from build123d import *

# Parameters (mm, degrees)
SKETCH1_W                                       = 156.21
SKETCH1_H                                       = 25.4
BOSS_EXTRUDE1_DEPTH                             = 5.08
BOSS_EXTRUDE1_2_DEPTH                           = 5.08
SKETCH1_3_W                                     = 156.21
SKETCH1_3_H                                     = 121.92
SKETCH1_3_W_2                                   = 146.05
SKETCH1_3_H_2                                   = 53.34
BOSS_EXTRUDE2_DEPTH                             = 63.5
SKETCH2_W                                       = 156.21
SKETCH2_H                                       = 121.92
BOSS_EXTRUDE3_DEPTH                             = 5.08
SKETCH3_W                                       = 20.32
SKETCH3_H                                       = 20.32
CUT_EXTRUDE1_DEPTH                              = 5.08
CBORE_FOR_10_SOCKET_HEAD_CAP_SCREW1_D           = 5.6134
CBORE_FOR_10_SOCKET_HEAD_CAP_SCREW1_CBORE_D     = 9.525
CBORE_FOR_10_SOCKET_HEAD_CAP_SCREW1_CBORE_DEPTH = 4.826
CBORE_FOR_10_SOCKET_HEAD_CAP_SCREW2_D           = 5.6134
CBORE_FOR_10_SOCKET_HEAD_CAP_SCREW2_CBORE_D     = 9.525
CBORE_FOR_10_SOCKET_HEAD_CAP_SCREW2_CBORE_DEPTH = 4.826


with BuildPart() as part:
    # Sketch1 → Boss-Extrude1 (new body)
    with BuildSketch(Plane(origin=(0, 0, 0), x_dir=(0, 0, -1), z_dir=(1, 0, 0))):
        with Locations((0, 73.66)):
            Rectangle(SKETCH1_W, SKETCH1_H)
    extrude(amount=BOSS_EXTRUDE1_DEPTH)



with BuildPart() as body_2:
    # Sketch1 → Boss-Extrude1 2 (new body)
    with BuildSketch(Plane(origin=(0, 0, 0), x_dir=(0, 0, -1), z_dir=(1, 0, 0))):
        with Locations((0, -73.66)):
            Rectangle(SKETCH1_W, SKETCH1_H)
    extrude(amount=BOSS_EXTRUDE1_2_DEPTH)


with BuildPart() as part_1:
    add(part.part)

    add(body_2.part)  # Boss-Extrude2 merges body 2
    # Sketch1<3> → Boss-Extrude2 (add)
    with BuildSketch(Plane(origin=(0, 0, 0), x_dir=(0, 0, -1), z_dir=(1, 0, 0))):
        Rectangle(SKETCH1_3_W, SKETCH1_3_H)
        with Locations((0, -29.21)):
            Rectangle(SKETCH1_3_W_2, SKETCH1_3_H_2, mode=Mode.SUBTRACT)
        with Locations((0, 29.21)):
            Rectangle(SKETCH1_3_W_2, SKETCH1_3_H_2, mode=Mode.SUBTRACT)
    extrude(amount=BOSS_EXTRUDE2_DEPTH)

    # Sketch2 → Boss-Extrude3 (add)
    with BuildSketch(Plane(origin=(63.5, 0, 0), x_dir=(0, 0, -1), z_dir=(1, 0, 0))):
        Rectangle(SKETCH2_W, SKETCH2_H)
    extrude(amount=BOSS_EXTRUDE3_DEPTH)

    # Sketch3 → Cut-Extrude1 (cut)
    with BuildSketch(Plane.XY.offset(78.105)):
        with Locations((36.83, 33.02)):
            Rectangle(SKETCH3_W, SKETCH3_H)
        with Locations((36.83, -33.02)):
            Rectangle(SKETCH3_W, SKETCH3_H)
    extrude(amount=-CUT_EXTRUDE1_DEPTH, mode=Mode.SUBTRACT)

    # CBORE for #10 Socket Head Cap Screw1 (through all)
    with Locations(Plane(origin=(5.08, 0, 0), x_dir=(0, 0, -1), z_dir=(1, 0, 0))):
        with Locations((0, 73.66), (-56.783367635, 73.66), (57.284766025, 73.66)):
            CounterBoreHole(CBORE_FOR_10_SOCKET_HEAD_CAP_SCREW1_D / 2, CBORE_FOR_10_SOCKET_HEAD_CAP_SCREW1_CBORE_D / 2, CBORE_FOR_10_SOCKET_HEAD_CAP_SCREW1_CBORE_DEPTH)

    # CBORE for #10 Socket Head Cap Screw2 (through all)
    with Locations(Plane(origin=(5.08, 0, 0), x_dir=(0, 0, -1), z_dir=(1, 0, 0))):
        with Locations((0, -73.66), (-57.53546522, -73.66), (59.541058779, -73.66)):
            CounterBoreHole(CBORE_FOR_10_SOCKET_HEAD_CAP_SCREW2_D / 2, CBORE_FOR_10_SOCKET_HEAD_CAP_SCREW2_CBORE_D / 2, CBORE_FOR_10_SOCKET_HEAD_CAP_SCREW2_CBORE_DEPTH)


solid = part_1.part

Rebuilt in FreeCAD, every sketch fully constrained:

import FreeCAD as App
import Part
import Sketcher
Q = App.Units.Quantity

doc = App.newDocument("Part")
params = doc.addObject("Spreadsheet::Sheet", "Params")
for row, (alias, value) in enumerate([
    ("sketch1_width", "1 in"),
    ("sketch1_height", "6.15 in"),
    ("pad1_length", "0.2 in"),
    ("sketch2_width", "1 in"),
    ("sketch2_height", "6.15 in"),
    ("pad2_length", "0.2 in"),
    ("sketch3_width", "4.8 in"),
    ("sketch3_width2", "2.1 in"),
    ("sketch3_height", "6.15 in"),
    ("sketch3_height2", "5.75 in"),
    ("pad3_length", "2.5 in"),
    ("sketch4_width", "4.8 in"),
    ("sketch4_height", "6.15 in"),
    ("pad4_length", "0.2 in"),
    ("sketch5_width", "0.8 in"),
    ("pocket1_length", "0.2 in"),
    ("sketch6_diameter", "0.221 in"),
    ("hole_diameter", "0.221 in"),
    ("hole_cbore_diameter", "0.375 in"),
    ("hole_cbore_depth", "0.19 in"),
    ("sketch7_diameter", "0.221 in"),
    ("hole2_diameter", "0.221 in"),
    ("hole2_cbore_diameter", "0.375 in"),
    ("hole2_cbore_depth", "0.19 in"),
], start=1):
    params.set(f"A{row}", alias)
    params.set(f"B{row}", "=" + value)
    params.setAlias(f"B{row}", alias)

body = doc.addObject("PartDesign::Body", "Body")

sketch1 = body.newObject("Sketcher::SketchObject", "Sketch")
sketch1.AttachmentSupport = (doc.getObject("YZ_Plane"), [""])
sketch1.MapMode = "FlatFace"
sketch1.addGeometry([
    Part.LineSegment(App.Vector(86, 78, 0), App.Vector(61, 78, 0)),
    Part.LineSegment(App.Vector(61, 78, 0), App.Vector(61, -78, 0)),
    Part.LineSegment(App.Vector(61, -78, 0), App.Vector(86, -78, 0)),
    Part.LineSegment(App.Vector(86, -78, 0), App.Vector(86, 78, 0)),
], False)
sketch1.addConstraint([
    Sketcher.Constraint("Coincident", 0, 2, 1, 1),
    Sketcher.Constraint("Coincident", 1, 2, 2, 1),
    Sketcher.Constraint("Coincident", 2, 2, 3, 1),
    Sketcher.Constraint("Coincident", 3, 2, 0, 1),
    Sketcher.Constraint("Horizontal", 0),
    Sketcher.Constraint("Vertical", 1),
    Sketcher.Constraint("Horizontal", 2),
    Sketcher.Constraint("Vertical", 3),
    Sketcher.Constraint("DistanceX", 0, 2, 0, 1, Q("1 in")),
    Sketcher.Constraint("DistanceY", 1, 2, 1, 1, Q("6.15 in")),
    Sketcher.Constraint("DistanceX", -1, 1, 0, 2, Q("2.4 in")),
    Sketcher.Constraint("DistanceY", -1, 1, 0, 2, Q("3.075 in")),
])
sketch1.setExpression("Constraints[8]", "Params.sketch1_width")
sketch1.setExpression("Constraints[9]", "Params.sketch1_height")
pad1 = body.newObject("PartDesign::Pad", "Pad")
pad1.Profile = sketch1
pad1.setExpression("Length", "Params.pad1_length")
body2 = doc.addObject("PartDesign::Body", "Body001")

sketch2 = body2.newObject("Sketcher::SketchObject", "Sketch001")
sketch2.AttachmentSupport = (doc.getObject("YZ_Plane001"), [""])
sketch2.MapMode = "FlatFace"
sketch2.addGeometry([
    Part.LineSegment(App.Vector(-61, 78, 0), App.Vector(-86, 78, 0)),
    Part.LineSegment(App.Vector(-86, 78, 0), App.Vector(-86, -78, 0)),
    Part.LineSegment(App.Vector(-86, -78, 0), App.Vector(-61, -78, 0)),
    Part.LineSegment(App.Vector(-61, -78, 0), App.Vector(-61, 78, 0)),
], False)
sketch2.addConstraint([
    Sketcher.Constraint("Coincident", 0, 2, 1, 1),
    Sketcher.Constraint("Coincident", 1, 2, 2, 1),
    Sketcher.Constraint("Coincident", 2, 2, 3, 1),
    Sketcher.Constraint("Coincident", 3, 2, 0, 1),
    Sketcher.Constraint("Horizontal", 0),
    Sketcher.Constraint("Vertical", 1),
    Sketcher.Constraint("Horizontal", 2),
    Sketcher.Constraint("Vertical", 3),
    Sketcher.Constraint("DistanceX", 0, 2, 0, 1, Q("1 in")),
    Sketcher.Constraint("DistanceY", 1, 2, 1, 1, Q("6.15 in")),
    Sketcher.Constraint("DistanceX", 0, 2, -1, 1, Q("3.4 in")),
    Sketcher.Constraint("DistanceY", -1, 1, 0, 2, Q("3.075 in")),
])
sketch2.setExpression("Constraints[8]", "Params.sketch2_width")
sketch2.setExpression("Constraints[9]", "Params.sketch2_height")
pad2 = body2.newObject("PartDesign::Pad", "Pad001")
pad2.Profile = sketch2
pad2.setExpression("Length", "Params.pad2_length")
body.AllowCompound = True
doc.recompute()

boolean = body.newObject("PartDesign::Boolean", "Boolean")
boolean.Type = "Fuse"
boolean.addObjects([body2])

sketch3 = body.newObject("Sketcher::SketchObject", "Sketch002")
sketch3.AttachmentSupport = (doc.getObject("YZ_Plane"), [""])
sketch3.MapMode = "FlatFace"
sketch3.addGeometry([
    Part.LineSegment(App.Vector(61, 78, 0), App.Vector(-61, 78, 0)),
    Part.LineSegment(App.Vector(-61, 78, 0), App.Vector(-61, -78, 0)),
    Part.LineSegment(App.Vector(-61, -78, 0), App.Vector(61, -78, 0)),
    Part.LineSegment(App.Vector(61, -78, 0), App.Vector(61, 78, 0)),
    Part.LineSegment(App.Vector(-56, -73, 0), App.Vector(-56, 73, 0)),
    Part.LineSegment(App.Vector(-56, 73, 0), App.Vector(-3, 73, 0)),
    Part.LineSegment(App.Vector(-3, 73, 0), App.Vector(-3, -73, 0)),
    Part.LineSegment(App.Vector(-3, -73, 0), App.Vector(-56, -73, 0)),
    Part.LineSegment(App.Vector(3, -73, 0), App.Vector(3, 73, 0)),
    Part.LineSegment(App.Vector(3, 73, 0), App.Vector(56, 73, 0)),
    Part.LineSegment(App.Vector(56, 73, 0), App.Vector(56, -73, 0)),
    Part.LineSegment(App.Vector(56, -73, 0), App.Vector(3, -73, 0)),
], False)
sketch3.addConstraint([
    Sketcher.Constraint("Coincident", 0, 2, 1, 1),
    Sketcher.Constraint("Coincident", 1, 2, 2, 1),
    Sketcher.Constraint("Coincident", 2, 2, 3, 1),
    Sketcher.Constraint("Coincident", 3, 2, 0, 1),
    Sketcher.Constraint("Coincident", 4, 2, 5, 1),
    Sketcher.Constraint("Coincident", 5, 2, 6, 1),
    Sketcher.Constraint("Coincident", 6, 2, 7, 1),
    Sketcher.Constraint("Coincident", 7, 2, 4, 1),
    Sketcher.Constraint("Coincident", 8, 2, 9, 1),
    Sketcher.Constraint("Coincident", 9, 2, 10, 1),
    Sketcher.Constraint("Coincident", 10, 2, 11, 1),
    Sketcher.Constraint("Coincident", 11, 2, 8, 1),
    Sketcher.Constraint("Horizontal", 0),
    Sketcher.Constraint("Vertical", 1),
    Sketcher.Constraint("Horizontal", 2),
    Sketcher.Constraint("Vertical", 3),
    Sketcher.Constraint("Vertical", 4),
    Sketcher.Constraint("Horizontal", 5),
    Sketcher.Constraint("Vertical", 6),
    Sketcher.Constraint("Horizontal", 7),
    Sketcher.Constraint("Vertical", 8),
    Sketcher.Constraint("Horizontal", 9),
    Sketcher.Constraint("Vertical", 10),
    Sketcher.Constraint("Horizontal", 11),
    Sketcher.Constraint("Symmetric", 0, 2, 2, 2, -1, 1),
    Sketcher.Constraint("Symmetric", 6, 2, 8, 2, -1, 1),
    Sketcher.Constraint("Symmetric", 4, 2, 10, 2, -1, 1),
    Sketcher.Constraint("Horizontal", 5, 2, 8, 2),
    Sketcher.Constraint("DistanceX", 0, 2, 0, 1, Q("4.8 in")),
    Sketcher.Constraint("DistanceX", 5, 1, 5, 2, Q("2.1 in")),
    Sketcher.Constraint("DistanceY", 1, 2, 1, 1, Q("6.15 in")),
    Sketcher.Constraint("DistanceY", 4, 1, 4, 2, Q("5.75 in")),
    Sketcher.Constraint("DistanceX", 4, 2, -1, 1, Q("2.2 in")),
])
sketch3.setExpression("Constraints[28]", "Params.sketch3_width")
sketch3.setExpression("Constraints[29]", "Params.sketch3_width2")
sketch3.setExpression("Constraints[30]", "Params.sketch3_height")
sketch3.setExpression("Constraints[31]", "Params.sketch3_height2")
pad3 = body.newObject("PartDesign::Pad", "Pad002")
pad3.Profile = sketch3
pad3.setExpression("Length", "Params.pad3_length")

sketch4 = body.newObject("Sketcher::SketchObject", "Sketch003")
sketch4.AttachmentSupport = (doc.getObject("YZ_Plane"), [""])
sketch4.MapMode = "FlatFace"
sketch4.AttachmentOffset = App.Placement(App.Vector(0, 0, 2.5 * 25.4), App.Rotation())
sketch4.addGeometry([
    Part.LineSegment(App.Vector(61, 78, 0), App.Vector(-61, 78, 0)),
    Part.LineSegment(App.Vector(-61, 78, 0), App.Vector(-61, -78, 0)),
    Part.LineSegment(App.Vector(-61, -78, 0), App.Vector(61, -78, 0)),
    Part.LineSegment(App.Vector(61, -78, 0), App.Vector(61, 78, 0)),
], False)
sketch4.addConstraint([
    Sketcher.Constraint("Coincident", 0, 2, 1, 1),
    Sketcher.Constraint("Coincident", 1, 2, 2, 1),
    Sketcher.Constraint("Coincident", 2, 2, 3, 1),
    Sketcher.Constraint("Coincident", 3, 2, 0, 1),
    Sketcher.Constraint("Horizontal", 0),
    Sketcher.Constraint("Vertical", 1),
    Sketcher.Constraint("Horizontal", 2),
    Sketcher.Constraint("Vertical", 3),
    Sketcher.Constraint("Symmetric", 0, 2, 2, 2, -1, 1),
    Sketcher.Constraint("DistanceX", 0, 2, 0, 1, Q("4.8 in")),
    Sketcher.Constraint("DistanceY", 1, 2, 1, 1, Q("6.15 in")),
])
sketch4.setExpression("Constraints[9]", "Params.sketch4_width")
sketch4.setExpression("Constraints[10]", "Params.sketch4_height")
pad4 = body.newObject("PartDesign::Pad", "Pad003")
pad4.Profile = sketch4
pad4.setExpression("Length", "Params.pad4_length")

sketch5 = body.newObject("Sketcher::SketchObject", "Sketch004")
sketch5.AttachmentSupport = (doc.getObject("XY_Plane"), [""])
sketch5.MapMode = "FlatFace"
sketch5.AttachmentOffset = App.Placement(App.Vector(0, 0, 3.075 * 25.4), App.Rotation())
sketch5.addGeometry([
    Part.LineSegment(App.Vector(27, 43, 0), App.Vector(27, 23, 0)),
    Part.LineSegment(App.Vector(27, 23, 0), App.Vector(47, 23, 0)),
    Part.LineSegment(App.Vector(47, 23, 0), App.Vector(47, 43, 0)),
    Part.LineSegment(App.Vector(47, 43, 0), App.Vector(27, 43, 0)),
    Part.LineSegment(App.Vector(27, -23, 0), App.Vector(27, -43, 0)),
    Part.LineSegment(App.Vector(27, -43, 0), App.Vector(47, -43, 0)),
    Part.LineSegment(App.Vector(47, -43, 0), App.Vector(47, -23, 0)),
    Part.LineSegment(App.Vector(47, -23, 0), App.Vector(27, -23, 0)),
], False)
sketch5.addConstraint([
    Sketcher.Constraint("Coincident", 0, 2, 1, 1),
    Sketcher.Constraint("Coincident", 1, 2, 2, 1),
    Sketcher.Constraint("Coincident", 2, 2, 3, 1),
    Sketcher.Constraint("Coincident", 3, 2, 0, 1),
    Sketcher.Constraint("Coincident", 4, 2, 5, 1),
    Sketcher.Constraint("Coincident", 5, 2, 6, 1),
    Sketcher.Constraint("Coincident", 6, 2, 7, 1),
    Sketcher.Constraint("Coincident", 7, 2, 4, 1),
    Sketcher.Constraint("Vertical", 0),
    Sketcher.Constraint("Horizontal", 1),
    Sketcher.Constraint("Vertical", 2),
    Sketcher.Constraint("Horizontal", 3),
    Sketcher.Constraint("Vertical", 4),
    Sketcher.Constraint("Horizontal", 5),
    Sketcher.Constraint("Vertical", 6),
    Sketcher.Constraint("Horizontal", 7),
    Sketcher.Constraint("Symmetric", 3, 2, 4, 2, -1),
    Sketcher.Constraint("Symmetric", 1, 2, 6, 2, -1),
    Sketcher.Constraint("Equal", 7, 0),
    Sketcher.Constraint("DistanceX", 1, 1, 1, 2, Q("0.8 in")),
    Sketcher.Constraint("DistanceY", -1, 1, 0, 2, Q("0.9 in")),
    Sketcher.Constraint("DistanceX", -1, 1, 0, 2, Q("1.05 in")),
])
sketch5.setExpression("Constraints[19]", "Params.sketch5_width")
pocket1 = body.newObject("PartDesign::Pocket", "Pocket")
pocket1.Profile = sketch5
pocket1.setExpression("Length", "Params.pocket1_length")

sketch6 = body.newObject("Sketcher::SketchObject", "Sketch005")
sketch6.AttachmentSupport = (doc.getObject("YZ_Plane"), [""])
sketch6.MapMode = "FlatFace"
sketch6.AttachmentOffset = App.Placement(App.Vector(0, 0, 0.2 * 25.4), App.Rotation())
sketch6.addGeometry([
    Part.Circle(App.Vector(73.7, 0, 0), App.Vector(0, 0, 1), 2.8),
    Part.Circle(App.Vector(73.7, 56.8, 0), App.Vector(0, 0, 1), 2.8),
    Part.Circle(App.Vector(73.7, -57.3, 0), App.Vector(0, 0, 1), 2.8),
], False)
sketch6.addConstraint([
    Sketcher.Constraint("Equal", 0, 1),
    Sketcher.Constraint("Equal", 1, 2),
    Sketcher.Constraint("PointOnObject", 0, 3, -1),
    Sketcher.Constraint("Vertical", 0, 3, 1, 3),
    Sketcher.Constraint("Vertical", 1, 3, 2, 3),
    Sketcher.Constraint("Diameter", 0, Q("0.221 in")),
    Sketcher.Constraint("DistanceX", -1, 1, 0, 3, Q("2.9 in")),
    Sketcher.Constraint("DistanceY", -1, 1, 1, 3, Q("56.783368 mm")),
    Sketcher.Constraint("DistanceY", 2, 3, -1, 1, Q("57.284766 mm")),
])
sketch6.setExpression("Constraints[5]", "Params.sketch6_diameter")
doc.recompute()
hole = body.newObject("PartDesign::Hole", "Hole")
hole.Profile = sketch6
hole.ThreadType = "None"
hole.setExpression("Diameter", "Params.hole_diameter")
hole.DepthType = "ThroughAll"
hole.HoleCutType = "Counterbore"
hole.setExpression("HoleCutDiameter", "Params.hole_cbore_diameter")
hole.setExpression("HoleCutDepth", "Params.hole_cbore_depth")

sketch7 = body.newObject("Sketcher::SketchObject", "Sketch006")
sketch7.AttachmentSupport = (doc.getObject("YZ_Plane"), [""])
sketch7.MapMode = "FlatFace"
sketch7.AttachmentOffset = App.Placement(App.Vector(0, 0, 0.2 * 25.4), App.Rotation())
sketch7.addGeometry([
    Part.Circle(App.Vector(-73.7, 0, 0), App.Vector(0, 0, 1), 2.8),
    Part.Circle(App.Vector(-73.7, 57.5, 0), App.Vector(0, 0, 1), 2.8),
    Part.Circle(App.Vector(-73.7, -59.5, 0), App.Vector(0, 0, 1), 2.8),
], False)
sketch7.addConstraint([
    Sketcher.Constraint("Equal", 0, 1),
    Sketcher.Constraint("Equal", 1, 2),
    Sketcher.Constraint("PointOnObject", 0, 3, -1),
    Sketcher.Constraint("Vertical", 0, 3, 1, 3),
    Sketcher.Constraint("Vertical", 1, 3, 2, 3),
    Sketcher.Constraint("Diameter", 0, Q("0.221 in")),
    Sketcher.Constraint("DistanceX", 0, 3, -1, 1, Q("2.9 in")),
    Sketcher.Constraint("DistanceY", 2, 3, -1, 1, Q("59.541059 mm")),
    Sketcher.Constraint("DistanceY", -1, 1, 1, 3, Q("57.535465 mm")),
])
sketch7.setExpression("Constraints[5]", "Params.sketch7_diameter")
doc.recompute()
hole2 = body.newObject("PartDesign::Hole", "Hole001")
hole2.Profile = sketch7
hole2.ThreadType = "None"
hole2.setExpression("Diameter", "Params.hole2_diameter")
hole2.DepthType = "ThroughAll"
hole2.HoleCutType = "Counterbore"
hole2.setExpression("HoleCutDiameter", "Params.hole2_cbore_diameter")
hole2.setExpression("HoleCutDepth", "Params.hole2_cbore_depth")

doc.recompute()
